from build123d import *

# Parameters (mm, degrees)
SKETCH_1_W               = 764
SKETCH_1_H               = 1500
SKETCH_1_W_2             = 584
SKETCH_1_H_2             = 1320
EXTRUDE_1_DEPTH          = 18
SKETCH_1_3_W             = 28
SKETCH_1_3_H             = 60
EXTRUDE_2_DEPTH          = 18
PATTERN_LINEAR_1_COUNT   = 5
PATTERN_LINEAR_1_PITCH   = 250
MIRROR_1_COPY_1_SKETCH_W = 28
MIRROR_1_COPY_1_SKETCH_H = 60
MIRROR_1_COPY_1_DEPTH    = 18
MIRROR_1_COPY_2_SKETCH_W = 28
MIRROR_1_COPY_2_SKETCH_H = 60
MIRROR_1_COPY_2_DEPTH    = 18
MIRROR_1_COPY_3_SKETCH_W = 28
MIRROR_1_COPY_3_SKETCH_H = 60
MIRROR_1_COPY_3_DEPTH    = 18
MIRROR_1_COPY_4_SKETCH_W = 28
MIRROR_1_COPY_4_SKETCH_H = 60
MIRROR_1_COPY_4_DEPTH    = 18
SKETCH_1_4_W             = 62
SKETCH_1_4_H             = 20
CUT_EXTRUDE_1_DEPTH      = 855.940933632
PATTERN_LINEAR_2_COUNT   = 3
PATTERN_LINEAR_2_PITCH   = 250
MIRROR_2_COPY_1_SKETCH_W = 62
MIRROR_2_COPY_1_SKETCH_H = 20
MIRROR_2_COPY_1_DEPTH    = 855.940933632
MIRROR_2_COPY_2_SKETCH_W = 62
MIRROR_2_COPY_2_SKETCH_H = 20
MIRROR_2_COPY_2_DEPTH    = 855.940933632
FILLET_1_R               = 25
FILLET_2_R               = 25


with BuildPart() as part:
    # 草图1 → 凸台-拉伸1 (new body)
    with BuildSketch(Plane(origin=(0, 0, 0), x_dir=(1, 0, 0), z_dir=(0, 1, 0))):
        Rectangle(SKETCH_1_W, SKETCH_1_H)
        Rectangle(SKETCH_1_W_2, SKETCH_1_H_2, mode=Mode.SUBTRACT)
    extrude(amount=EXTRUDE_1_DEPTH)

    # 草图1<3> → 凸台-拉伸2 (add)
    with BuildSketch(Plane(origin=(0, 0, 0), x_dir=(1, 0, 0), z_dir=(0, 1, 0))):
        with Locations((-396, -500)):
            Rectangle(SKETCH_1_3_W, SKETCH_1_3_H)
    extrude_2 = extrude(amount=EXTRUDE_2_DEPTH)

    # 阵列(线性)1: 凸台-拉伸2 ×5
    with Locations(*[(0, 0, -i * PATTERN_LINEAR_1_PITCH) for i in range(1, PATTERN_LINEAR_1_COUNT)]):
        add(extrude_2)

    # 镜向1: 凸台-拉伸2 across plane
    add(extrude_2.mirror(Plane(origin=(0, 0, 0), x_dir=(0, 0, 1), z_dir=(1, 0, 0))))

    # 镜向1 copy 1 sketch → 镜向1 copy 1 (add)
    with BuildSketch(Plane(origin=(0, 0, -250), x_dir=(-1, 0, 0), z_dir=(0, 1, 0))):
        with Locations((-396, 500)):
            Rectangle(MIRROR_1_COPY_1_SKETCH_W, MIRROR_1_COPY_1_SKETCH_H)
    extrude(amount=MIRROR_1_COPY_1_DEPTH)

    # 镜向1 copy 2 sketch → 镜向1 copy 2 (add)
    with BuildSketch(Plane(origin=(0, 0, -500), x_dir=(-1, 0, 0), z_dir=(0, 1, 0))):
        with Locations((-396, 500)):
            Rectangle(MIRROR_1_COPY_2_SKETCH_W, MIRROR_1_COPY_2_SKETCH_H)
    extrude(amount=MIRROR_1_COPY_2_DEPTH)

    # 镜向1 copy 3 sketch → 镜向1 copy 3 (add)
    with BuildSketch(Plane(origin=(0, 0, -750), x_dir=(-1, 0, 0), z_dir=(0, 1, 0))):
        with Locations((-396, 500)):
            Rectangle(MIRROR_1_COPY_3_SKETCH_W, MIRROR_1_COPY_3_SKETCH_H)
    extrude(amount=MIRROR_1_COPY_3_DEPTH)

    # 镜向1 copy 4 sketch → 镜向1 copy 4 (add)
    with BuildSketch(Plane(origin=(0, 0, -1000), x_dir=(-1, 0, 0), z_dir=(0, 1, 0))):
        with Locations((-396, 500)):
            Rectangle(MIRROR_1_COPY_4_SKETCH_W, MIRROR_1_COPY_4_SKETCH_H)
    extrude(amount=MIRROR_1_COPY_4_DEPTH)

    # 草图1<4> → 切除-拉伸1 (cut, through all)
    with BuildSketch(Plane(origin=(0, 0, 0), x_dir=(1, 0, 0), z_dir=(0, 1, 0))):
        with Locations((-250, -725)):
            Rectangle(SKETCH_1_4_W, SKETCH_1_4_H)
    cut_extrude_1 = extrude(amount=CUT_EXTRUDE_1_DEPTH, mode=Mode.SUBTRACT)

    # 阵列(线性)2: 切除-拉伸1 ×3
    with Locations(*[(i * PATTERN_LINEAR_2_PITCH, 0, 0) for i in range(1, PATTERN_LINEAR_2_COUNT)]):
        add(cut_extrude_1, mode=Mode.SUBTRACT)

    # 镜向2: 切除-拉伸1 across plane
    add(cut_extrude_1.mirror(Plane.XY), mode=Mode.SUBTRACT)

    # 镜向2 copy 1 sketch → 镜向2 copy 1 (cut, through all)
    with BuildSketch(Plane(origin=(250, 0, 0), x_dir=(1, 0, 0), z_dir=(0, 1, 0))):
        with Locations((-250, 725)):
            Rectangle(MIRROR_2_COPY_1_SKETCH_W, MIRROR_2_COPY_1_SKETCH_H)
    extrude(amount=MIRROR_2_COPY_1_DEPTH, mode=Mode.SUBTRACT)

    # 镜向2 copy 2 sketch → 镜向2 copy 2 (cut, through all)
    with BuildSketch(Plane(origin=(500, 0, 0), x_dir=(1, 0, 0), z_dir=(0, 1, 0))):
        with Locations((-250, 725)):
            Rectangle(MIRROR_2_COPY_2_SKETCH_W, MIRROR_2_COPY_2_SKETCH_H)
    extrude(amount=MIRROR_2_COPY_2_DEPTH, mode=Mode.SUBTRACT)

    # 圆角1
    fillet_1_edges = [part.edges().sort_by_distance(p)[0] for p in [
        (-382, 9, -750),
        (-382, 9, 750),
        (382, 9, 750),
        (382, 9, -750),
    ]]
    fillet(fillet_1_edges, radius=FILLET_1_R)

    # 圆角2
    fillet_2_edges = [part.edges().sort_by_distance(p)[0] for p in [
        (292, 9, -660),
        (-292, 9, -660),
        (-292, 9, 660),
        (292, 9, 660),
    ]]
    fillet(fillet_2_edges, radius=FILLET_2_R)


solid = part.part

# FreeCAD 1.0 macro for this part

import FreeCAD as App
import Part
import Sketcher
Q = App.Units.Quantity


def edges_at(feature, points):
    """Names of the edges that pass closest to the given points."""
    edges = feature.Shape.Edges
    near = lambda p: min(range(len(edges)), key=lambda i: edges[i].distToShape(Part.Vertex(*p))[0])
    return sorted({f"Edge{near(p) + 1}" for p in points})


def add_polygon(sketch, points):
    """Adds a closed chain of lines whose ends are joined by coincident constraints."""
    first, n = sketch.GeometryCount, len(points)
    for a, b in zip(points, points[1:] + points[:1]):
        sketch.addGeometry(Part.LineSegment(App.Vector(*a, 0), App.Vector(*b, 0)), False)
    for i in range(n):
        sketch.addConstraint(Sketcher.Constraint("Coincident", first + i, 2, first + (i + 1) % n, 1))

doc = App.newDocument("Part")
params = doc.addObject("Spreadsheet::Sheet", "Params")
for row, (alias, value) in enumerate([
    ("sketch1_width", "764 mm"),
    ("sketch1_width2", "584 mm"),
    ("sketch1_height", "1500 mm"),
    ("sketch1_height2", "1320 mm"),
    ("pad1_length", "18 mm"),
    ("sketch2_width", "28 mm"),
    ("sketch2_height", "60 mm"),
    ("pad2_length", "18 mm"),
    ("linearpattern_pitch", "250 mm"),
    ("sketch3_width", "28 mm"),
    ("sketch3_height", "60 mm"),
    ("pad3_length", "18 mm"),
    ("sketch4_width", "28 mm"),
    ("sketch4_height", "60 mm"),
    ("pad4_length", "18 mm"),
    ("sketch5_width", "28 mm"),
    ("sketch5_height", "60 mm"),
    ("pad5_length", "18 mm"),
    ("sketch6_width", "28 mm"),
    ("sketch6_height", "60 mm"),
    ("pad6_length", "18 mm"),
    ("sketch7_width", "62 mm"),
    ("sketch7_height", "20 mm"),
    ("linearpattern2_pitch", "250 mm"),
    ("sketch8_width", "62 mm"),
    ("sketch8_height", "20 mm"),
    ("sketch9_width", "62 mm"),
    ("sketch9_height", "20 mm"),
    ("fillet_radius", "25 mm"),
    ("fillet2_radius", "25 mm"),
], start=1):
    params.set(f"A{row}", alias)
    params.set(f"B{row}", "=" + value)
    params.setAlias(f"B{row}", alias)

body = doc.addObject("PartDesign::Body", "Body")

# Sketch on XZ plane
sketch1 = doc.addObject("Sketcher::SketchObject", "Sketch")
body.addObject(sketch1)
sketch1.AttachmentSupport = (doc.XZ_Plane, [""])
sketch1.MapMode = "FlatFace"
add_polygon(sketch1, [(-382, -750), (-382, 750), (382, 750), (382, -750)])  # lines 0-3
add_polygon(sketch1, [(292, 660), (-292, 660), (-292, -660), (292, -660)])  # lines 4-7
sketch1.addConstraint([
    Sketcher.Constraint("Vertical", 0),
    Sketcher.Constraint("Horizontal", 1),
    Sketcher.Constraint("Vertical", 2),
    Sketcher.Constraint("Horizontal", 3),
    Sketcher.Constraint("Horizontal", 4),
    Sketcher.Constraint("Vertical", 5),
    Sketcher.Constraint("Horizontal", 6),
    Sketcher.Constraint("Vertical", 7),
    Sketcher.Constraint("Symmetric", 0, 2, 2, 2, -1, 1),
    Sketcher.Constraint("Symmetric", 4, 2, 6, 2, -1, 1),
    Sketcher.Constraint("DistanceX", 1, 1, 1, 2, Q("764 mm")),
    Sketcher.Constraint("DistanceX", 4, 2, 4, 1, Q("584 mm")),
    Sketcher.Constraint("DistanceY", 0, 1, 0, 2, Q("1500 mm")),
    Sketcher.Constraint("DistanceY", 5, 2, 5, 1, Q("1320 mm")),
])
sketch1.setExpression("Constraints[18]", "Params.sketch1_width")
sketch1.setExpression("Constraints[19]", "Params.sketch1_width2")
sketch1.setExpression("Constraints[20]", "Params.sketch1_height")
sketch1.setExpression("Constraints[21]", "Params.sketch1_height2")
pad1 = doc.addObject("PartDesign::Pad", "Pad")
body.addObject(pad1)
pad1.Profile = sketch1
pad1.setExpression("Length", "Params.pad1_length")
pad1.Reversed = True

# Sketch on XZ plane
sketch2 = doc.addObject("Sketcher::SketchObject", "Sketch001")
body.addObject(sketch2)
sketch2.AttachmentSupport = (doc.XZ_Plane, [""])
sketch2.MapMode = "FlatFace"
add_polygon(sketch2, [(-410, 470), (-410, 530), (-382, 530), (-382, 470)])  # lines 0-3
sketch2.addConstraint([
    Sketcher.Constraint("Vertical", 0),
    Sketcher.Constraint("Horizontal", 1),
    Sketcher.Constraint("Vertical", 2),
    Sketcher.Constraint("Horizontal", 3),
    Sketcher.Constraint("DistanceX", 1, 1, 1, 2, Q("28 mm")),
    Sketcher.Constraint("DistanceY", 0, 1, 0, 2, Q("60 mm")),
    Sketcher.Constraint("DistanceX", 0, 2, -1, 1, Q("410 mm")),
    Sketcher.Constraint("DistanceY", -1, 1, 0, 2, Q("530 mm")),
])
sketch2.setExpression("Constraints[8]", "Params.sketch2_width")
sketch2.setExpression("Constraints[9]", "Params.sketch2_height")
pad2 = doc.addObject("PartDesign::Pad", "Pad001")
body.addObject(pad2)
pad2.Profile = sketch2
pad2.setExpression("Length", "Params.pad2_length")
pad2.Reversed = True
doc.recompute()

linearpattern = doc.addObject("PartDesign::LinearPattern", "LinearPattern")
body.addObject(linearpattern)
linearpattern.Originals = [pad2]
linearpattern.Direction = (doc.Z_Axis, [""])
linearpattern.Mode = "offset"
linearpattern.setExpression("Offset", "Params.linearpattern_pitch")
linearpattern.Occurrences = 5
linearpattern.Reversed = True
body.Tip = linearpattern
doc.recompute()

mirrored = doc.addObject("PartDesign::Mirrored", "Mirrored")
body.addObject(mirrored)
mirrored.Originals = [pad2]
mirrored.MirrorPlane = (doc.YZ_Plane, [""])
body.Tip = mirrored

# Sketch on XZ plane
sketch3 = doc.addObject("Sketcher::SketchObject", "Sketch002")
body.addObject(sketch3)
sketch3.AttachmentSupport = (doc.XZ_Plane, [""])
sketch3.MapMode = "FlatFace"
add_polygon(sketch3, [(410, 280), (410, 220), (382, 220), (382, 280)])  # lines 0-3
sketch3.addConstraint([
    Sketcher.Constraint("Vertical", 0),
    Sketcher.Constraint("Horizontal", 1),
    Sketcher.Constraint("Vertical", 2),
    Sketcher.Constraint("Horizontal", 3),
    Sketcher.Constraint("DistanceX", 1, 2, 1, 1, Q("28 mm")),
    Sketcher.Constraint("DistanceY", 0, 2, 0, 1, Q("60 mm")),
    Sketcher.Constraint("DistanceX", -1, 1, 0, 2, Q("410 mm")),
    Sketcher.Constraint("DistanceY", -1, 1, 0, 2, Q("220 mm")),
])
sketch3.setExpression("Constraints[8]", "Params.sketch3_width")
sketch3.setExpression("Constraints[9]", "Params.sketch3_height")
pad3 = doc.addObject("PartDesign::Pad", "Pad002")
body.addObject(pad3)
pad3.Profile = sketch3
pad3.setExpression("Length", "Params.pad3_length")
pad3.Reversed = True

# Sketch on XZ plane
sketch4 = doc.addObject("Sketcher::SketchObject", "Sketch003")
body.addObject(sketch4)
sketch4.AttachmentSupport = (doc.XZ_Plane, [""])
sketch4.MapMode = "FlatFace"
add_polygon(sketch4, [(410, 30), (410, -30), (382, -30), (382, 30)])  # lines 0-3
sketch4.addConstraint([
    Sketcher.Constraint("Vertical", 0),
    Sketcher.Constraint("Horizontal", 1),
    Sketcher.Constraint("Vertical", 2),
    Sketcher.Constraint("Horizontal", 3),
    Sketcher.Constraint("DistanceX", 1, 2, 1, 1, Q("28 mm")),
    Sketcher.Constraint("DistanceY", 0, 2, 0, 1, Q("60 mm")),
    Sketcher.Constraint("DistanceX", -1, 1, 0, 2, Q("410 mm")),
    Sketcher.Constraint("DistanceY", 0, 2, -1, 1, Q("30 mm")),
])
sketch4.setExpression("Constraints[8]", "Params.sketch4_width")
sketch4.setExpression("Constraints[9]", "Params.sketch4_height")
pad4 = doc.addObject("PartDesign::Pad", "Pad003")
body.addObject(pad4)
pad4.Profile = sketch4
pad4.setExpression("Length", "Params.pad4_length")
pad4.Reversed = True

# Sketch on XZ plane
sketch5 = doc.addObject("Sketcher::SketchObject", "Sketch004")
body.addObject(sketch5)
sketch5.AttachmentSupport = (doc.XZ_Plane, [""])
sketch5.MapMode = "FlatFace"
add_polygon(sketch5, [(410, -220), (410, -280), (382, -280), (382, -220)])  # lines 0-3
sketch5.addConstraint([
    Sketcher.Constraint("Vertical", 0),
    Sketcher.Constraint("Horizontal", 1),
    Sketcher.Constraint("Vertical", 2),
    Sketcher.Constraint("Horizontal", 3),
    Sketcher.Constraint("DistanceX", 1, 2, 1, 1, Q("28 mm")),
    Sketcher.Constraint("DistanceY", 0, 2, 0, 1, Q("60 mm")),
    Sketcher.Constraint("DistanceX", -1, 1, 0, 2, Q("410 mm")),
    Sketcher.Constraint("DistanceY", 0, 2, -1, 1, Q("280 mm")),
])
sketch5.setExpression("Constraints[8]", "Params.sketch5_width")
sketch5.setExpression("Constraints[9]", "Params.sketch5_height")
pad5 = doc.addObject("PartDesign::Pad", "Pad004")
body.addObject(pad5)
pad5.Profile = sketch5
pad5.setExpression("Length", "Params.pad5_length")
pad5.Reversed = True

# Sketch on XZ plane
sketch6 = doc.addObject("Sketcher::SketchObject", "Sketch005")
body.addObject(sketch6)
sketch6.AttachmentSupport = (doc.XZ_Plane, [""])
sketch6.MapMode = "FlatFace"
add_polygon(sketch6, [(410, -470), (410, -530), (382, -530), (382, -470)])  # lines 0-3
sketch6.addConstraint([
    Sketcher.Constraint("Vertical", 0),
    Sketcher.Constraint("Horizontal", 1),
    Sketcher.Constraint("Vertical", 2),
    Sketcher.Constraint("Horizontal", 3),
    Sketcher.Constraint("DistanceX", 1, 2, 1, 1, Q("28 mm")),
    Sketcher.Constraint("DistanceY", 0, 2, 0, 1, Q("60 mm")),
    Sketcher.Constraint("DistanceX", -1, 1, 0, 2, Q("410 mm")),
    Sketcher.Constraint("DistanceY", 0, 2, -1, 1, Q("530 mm")),
])
sketch6.setExpression("Constraints[8]", "Params.sketch6_width")
sketch6.setExpression("Constraints[9]", "Params.sketch6_height")
pad6 = doc.addObject("PartDesign::Pad", "Pad005")
body.addObject(pad6)
pad6.Profile = sketch6
pad6.setExpression("Length", "Params.pad6_length")
pad6.Reversed = True

# Sketch on XZ plane
sketch7 = doc.addObject("Sketcher::SketchObject", "Sketch006")
body.addObject(sketch7)
sketch7.AttachmentSupport = (doc.XZ_Plane, [""])
sketch7.MapMode = "FlatFace"
add_polygon(sketch7, [(-281, 715), (-281, 735), (-219, 735), (-219, 715)])  # lines 0-3
sketch7.addConstraint([
    Sketcher.Constraint("Vertical", 0),
    Sketcher.Constraint("Horizontal", 1),
    Sketcher.Constraint("Vertical", 2),
    Sketcher.Constraint("Horizontal", 3),
    Sketcher.Constraint("DistanceX", 1, 1, 1, 2, Q("62 mm")),
    Sketcher.Constraint("DistanceY", 0, 1, 0, 2, Q("20 mm")),
    Sketcher.Constraint("DistanceX", 0, 2, -1, 1, Q("281 mm")),
    Sketcher.Constraint("DistanceY", -1, 1, 0, 2, Q("735 mm")),
])
sketch7.setExpression("Constraints[8]", "Params.sketch7_width")
sketch7.setExpression("Constraints[9]", "Params.sketch7_height")
pocket1 = doc.addObject("PartDesign::Pocket", "Pocket")
body.addObject(pocket1)
pocket1.Profile = sketch7
pocket1.Type = "ThroughAll"
doc.recompute()

linearpattern2 = doc.addObject("PartDesign::LinearPattern", "LinearPattern001")
body.addObject(linearpattern2)
linearpattern2.Originals = [pocket1]
linearpattern2.Direction = (doc.X_Axis, [""])
linearpattern2.Mode = "offset"
linearpattern2.setExpression("Offset", "Params.linearpattern2_pitch")
linearpattern2.Occurrences = 3
body.Tip = linearpattern2
doc.recompute()

mirrored2 = doc.addObject("PartDesign::Mirrored", "Mirrored001")
body.addObject(mirrored2)
mirrored2.Originals = [pocket1]
mirrored2.MirrorPlane = (doc.XY_Plane, [""])
body.Tip = mirrored2

# Sketch on XZ plane
sketch8 = doc.addObject("Sketcher::SketchObject", "Sketch007")
body.addObject(sketch8)
sketch8.AttachmentSupport = (doc.XZ_Plane, [""])
sketch8.MapMode = "FlatFace"
add_polygon(sketch8, [(-31, -735), (-31, -715), (31, -715), (31, -735)])  # lines 0-3
sketch8.addConstraint([
    Sketcher.Constraint("Vertical", 0),
    Sketcher.Constraint("Horizontal", 1),
    Sketcher.Constraint("Vertical", 2),
    Sketcher.Constraint("Horizontal", 3),
    Sketcher.Constraint("DistanceX", 1, 1, 1, 2, Q("62 mm")),
    Sketcher.Constraint("DistanceY", 0, 1, 0, 2, Q("20 mm")),
    Sketcher.Constraint("DistanceX", 0, 2, -1, 1, Q("31 mm")),
    Sketcher.Constraint("DistanceY", 0, 2, -1, 1, Q("715 mm")),
])
sketch8.setExpression("Constraints[8]", "Params.sketch8_width")
sketch8.setExpression("Constraints[9]", "Params.sketch8_height")
pocket2 = doc.addObject("PartDesign::Pocket", "Pocket001")
body.addObject(pocket2)
pocket2.Profile = sketch8
pocket2.Type = "ThroughAll"

# Sketch on XZ plane
sketch9 = doc.addObject("Sketcher::SketchObject", "Sketch008")
body.addObject(sketch9)
sketch9.AttachmentSupport = (doc.XZ_Plane, [""])
sketch9.MapMode = "FlatFace"
add_polygon(sketch9, [(219, -735), (219, -715), (281, -715), (281, -735)])  # lines 0-3
sketch9.addConstraint([
    Sketcher.Constraint("Vertical", 0),
    Sketcher.Constraint("Horizontal", 1),
    Sketcher.Constraint("Vertical", 2),
    Sketcher.Constraint("Horizontal", 3),
    Sketcher.Constraint("DistanceX", 1, 1, 1, 2, Q("62 mm")),
    Sketcher.Constraint("DistanceY", 0, 1, 0, 2, Q("20 mm")),
    Sketcher.Constraint("DistanceX", -1, 1, 0, 2, Q("219 mm")),
    Sketcher.Constraint("DistanceY", 0, 2, -1, 1, Q("715 mm")),
])
sketch9.setExpression("Constraints[8]", "Params.sketch9_width")
sketch9.setExpression("Constraints[9]", "Params.sketch9_height")
pocket3 = doc.addObject("PartDesign::Pocket", "Pocket002")
body.addObject(pocket3)
pocket3.Profile = sketch9
pocket3.Type = "ThroughAll"
doc.recompute()

fillet = doc.addObject("PartDesign::Fillet", "Fillet")
body.addObject(fillet)
fillet.Base = (pocket3, edges_at(pocket3, [
    (-382, 9, -750),
    (-382, 9, 750),
    (382, 9, 750),
    (382, 9, -750),
]))
fillet.setExpression("Radius", "Params.fillet_radius")
doc.recompute()

fillet2 = doc.addObject("PartDesign::Fillet", "Fillet001")
body.addObject(fillet2)
fillet2.Base = (fillet, edges_at(fillet, [
    (292, 9, -660),
    (-292, 9, -660),
    (-292, 9, 660),
    (292, 9, 660),
]))
fillet2.setExpression("Radius", "Params.fillet2_radius")

doc.recompute()
